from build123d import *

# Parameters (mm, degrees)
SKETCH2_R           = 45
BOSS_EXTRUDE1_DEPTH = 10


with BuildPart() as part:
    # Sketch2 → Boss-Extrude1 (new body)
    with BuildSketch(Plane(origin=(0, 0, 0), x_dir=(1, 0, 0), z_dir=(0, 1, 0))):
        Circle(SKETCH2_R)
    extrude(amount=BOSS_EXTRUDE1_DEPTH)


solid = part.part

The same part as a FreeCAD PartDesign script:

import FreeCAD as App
import Part
import Sketcher

V = App.Vector

doc = App.newDocument("Part")
body = doc.addObject("PartDesign::Body", "Body")

# Sketch on XZ plane
sketch1 = doc.addObject("Sketcher::SketchObject", "Sketch")
body.addObject(sketch1)
sketch1.AttachmentSupport = (doc.XZ_Plane, [""])
sketch1.MapMode = "FlatFace"
sketch1.addGeometry(Part.Circle(V(0, 0, 0), V(0, 0, 1), 45), False)
sketch1.addConstraint([
    Sketcher.Constraint("Coincident", 0, 3, -1, 1),
    Sketcher.Constraint("Diameter", 0, 90.0),
])
pad1 = doc.addObject("PartDesign::Pad", "Pad")
body.addObject(pad1)
pad1.Profile = sketch1
pad1.Length = 10
pad1.Reversed = True

doc.recompute()
